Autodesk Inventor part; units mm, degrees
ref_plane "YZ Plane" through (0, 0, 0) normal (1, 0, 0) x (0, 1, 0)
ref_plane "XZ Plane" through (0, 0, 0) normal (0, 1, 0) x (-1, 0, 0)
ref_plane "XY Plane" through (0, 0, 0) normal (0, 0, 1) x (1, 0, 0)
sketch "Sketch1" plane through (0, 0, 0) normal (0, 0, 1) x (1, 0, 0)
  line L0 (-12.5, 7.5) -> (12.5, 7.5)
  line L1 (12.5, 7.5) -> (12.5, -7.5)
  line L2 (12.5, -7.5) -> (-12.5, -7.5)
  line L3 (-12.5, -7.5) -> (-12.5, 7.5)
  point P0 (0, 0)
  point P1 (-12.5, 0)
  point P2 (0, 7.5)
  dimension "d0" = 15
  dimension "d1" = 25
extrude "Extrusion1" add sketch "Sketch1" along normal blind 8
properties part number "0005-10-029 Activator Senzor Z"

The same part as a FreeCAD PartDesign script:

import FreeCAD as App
import Part
import Sketcher

doc = App.newDocument("Part")
body = doc.addObject("PartDesign::Body", "Body")

sketch1 = doc.addObject("Sketcher::SketchObject", "Sketch")
body.addObject(sketch1)
sketch1.AttachmentSupport = (doc.XY_Plane, [""])
sketch1.MapMode = "FlatFace"
sketch1.addGeometry([
    Part.LineSegment(App.Vector(12, 8, 0), App.Vector(-12, 8, 0)),
    Part.LineSegment(App.Vector(-12, 8, 0), App.Vector(-12, -8, 0)),
    Part.LineSegment(App.Vector(-12, -8, 0), App.Vector(12, -8, 0)),
    Part.LineSegment(App.Vector(12, -8, 0), App.Vector(12, 8, 0)),
], False)
sketch1.addConstraint([
    Sketcher.Constraint("Coincident", 0, 2, 1, 1),
    Sketcher.Constraint("Coincident", 1, 2, 2, 1),
    Sketcher.Constraint("Coincident", 2, 2, 3, 1),
    Sketcher.Constraint("Coincident", 3, 2, 0, 1),
    Sketcher.Constraint("Horizontal", 0),
    Sketcher.Constraint("Vertical", 1),
    Sketcher.Constraint("Horizontal", 2),
    Sketcher.Constraint("Vertical", 3),
    Sketcher.Constraint("Symmetric", 0, 2, 2, 2, -1, 1),
    Sketcher.Constraint("DistanceX", 0, 2, 0, 1, 25.0),
    Sketcher.Constraint("DistanceY", 1, 2, 1, 1, 15.0),
])
pad1 = doc.addObject("PartDesign::Pad", "Pad")
body.addObject(pad1)
pad1.Profile = sketch1
pad1.Length = 8

doc.recompute()
